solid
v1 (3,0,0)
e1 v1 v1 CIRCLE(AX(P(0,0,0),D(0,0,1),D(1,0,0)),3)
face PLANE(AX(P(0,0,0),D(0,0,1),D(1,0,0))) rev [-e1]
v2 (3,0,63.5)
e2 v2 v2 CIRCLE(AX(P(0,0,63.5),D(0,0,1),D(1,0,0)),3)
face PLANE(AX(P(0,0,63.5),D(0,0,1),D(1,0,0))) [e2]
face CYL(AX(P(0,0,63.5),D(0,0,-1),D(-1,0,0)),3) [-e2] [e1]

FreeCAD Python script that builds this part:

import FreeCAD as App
import Part
import Sketcher
Q = App.Units.Quantity

doc = App.newDocument("Part")
params = doc.addObject("Spreadsheet::Sheet", "Params")
for row, (alias, value) in enumerate([
    ("sketch1_diameter", "6 mm"),
    ("pad1_length", "63.5 mm"),
], start=1):
    params.set(f"A{row}", alias)
    params.set(f"B{row}", "=" + value)
    params.setAlias(f"B{row}", alias)

body = doc.addObject("PartDesign::Body", "Body")

# Sketch on XY plane
sketch1 = body.newObject("Sketcher::SketchObject", "Sketch")
sketch1.AttachmentSupport = (doc.getObject("XY_Plane"), [""])
sketch1.MapMode = "FlatFace"
sketch1.addGeometry(Part.Circle(App.Vector(0, 0, 0), App.Vector(0, 0, 1), 3), False)
sketch1.addConstraint([
    Sketcher.Constraint("Coincident", 0, 3, -1, 1),
    Sketcher.Constraint("Diameter", 0, Q("6 mm")),
])
sketch1.setExpression("Constraints[1]", "Params.sketch1_diameter")
pad1 = body.newObject("PartDesign::Pad", "Pad")
pad1.Profile = sketch1
pad1.setExpression("Length", "Params.pad1_length")

doc.recompute()
